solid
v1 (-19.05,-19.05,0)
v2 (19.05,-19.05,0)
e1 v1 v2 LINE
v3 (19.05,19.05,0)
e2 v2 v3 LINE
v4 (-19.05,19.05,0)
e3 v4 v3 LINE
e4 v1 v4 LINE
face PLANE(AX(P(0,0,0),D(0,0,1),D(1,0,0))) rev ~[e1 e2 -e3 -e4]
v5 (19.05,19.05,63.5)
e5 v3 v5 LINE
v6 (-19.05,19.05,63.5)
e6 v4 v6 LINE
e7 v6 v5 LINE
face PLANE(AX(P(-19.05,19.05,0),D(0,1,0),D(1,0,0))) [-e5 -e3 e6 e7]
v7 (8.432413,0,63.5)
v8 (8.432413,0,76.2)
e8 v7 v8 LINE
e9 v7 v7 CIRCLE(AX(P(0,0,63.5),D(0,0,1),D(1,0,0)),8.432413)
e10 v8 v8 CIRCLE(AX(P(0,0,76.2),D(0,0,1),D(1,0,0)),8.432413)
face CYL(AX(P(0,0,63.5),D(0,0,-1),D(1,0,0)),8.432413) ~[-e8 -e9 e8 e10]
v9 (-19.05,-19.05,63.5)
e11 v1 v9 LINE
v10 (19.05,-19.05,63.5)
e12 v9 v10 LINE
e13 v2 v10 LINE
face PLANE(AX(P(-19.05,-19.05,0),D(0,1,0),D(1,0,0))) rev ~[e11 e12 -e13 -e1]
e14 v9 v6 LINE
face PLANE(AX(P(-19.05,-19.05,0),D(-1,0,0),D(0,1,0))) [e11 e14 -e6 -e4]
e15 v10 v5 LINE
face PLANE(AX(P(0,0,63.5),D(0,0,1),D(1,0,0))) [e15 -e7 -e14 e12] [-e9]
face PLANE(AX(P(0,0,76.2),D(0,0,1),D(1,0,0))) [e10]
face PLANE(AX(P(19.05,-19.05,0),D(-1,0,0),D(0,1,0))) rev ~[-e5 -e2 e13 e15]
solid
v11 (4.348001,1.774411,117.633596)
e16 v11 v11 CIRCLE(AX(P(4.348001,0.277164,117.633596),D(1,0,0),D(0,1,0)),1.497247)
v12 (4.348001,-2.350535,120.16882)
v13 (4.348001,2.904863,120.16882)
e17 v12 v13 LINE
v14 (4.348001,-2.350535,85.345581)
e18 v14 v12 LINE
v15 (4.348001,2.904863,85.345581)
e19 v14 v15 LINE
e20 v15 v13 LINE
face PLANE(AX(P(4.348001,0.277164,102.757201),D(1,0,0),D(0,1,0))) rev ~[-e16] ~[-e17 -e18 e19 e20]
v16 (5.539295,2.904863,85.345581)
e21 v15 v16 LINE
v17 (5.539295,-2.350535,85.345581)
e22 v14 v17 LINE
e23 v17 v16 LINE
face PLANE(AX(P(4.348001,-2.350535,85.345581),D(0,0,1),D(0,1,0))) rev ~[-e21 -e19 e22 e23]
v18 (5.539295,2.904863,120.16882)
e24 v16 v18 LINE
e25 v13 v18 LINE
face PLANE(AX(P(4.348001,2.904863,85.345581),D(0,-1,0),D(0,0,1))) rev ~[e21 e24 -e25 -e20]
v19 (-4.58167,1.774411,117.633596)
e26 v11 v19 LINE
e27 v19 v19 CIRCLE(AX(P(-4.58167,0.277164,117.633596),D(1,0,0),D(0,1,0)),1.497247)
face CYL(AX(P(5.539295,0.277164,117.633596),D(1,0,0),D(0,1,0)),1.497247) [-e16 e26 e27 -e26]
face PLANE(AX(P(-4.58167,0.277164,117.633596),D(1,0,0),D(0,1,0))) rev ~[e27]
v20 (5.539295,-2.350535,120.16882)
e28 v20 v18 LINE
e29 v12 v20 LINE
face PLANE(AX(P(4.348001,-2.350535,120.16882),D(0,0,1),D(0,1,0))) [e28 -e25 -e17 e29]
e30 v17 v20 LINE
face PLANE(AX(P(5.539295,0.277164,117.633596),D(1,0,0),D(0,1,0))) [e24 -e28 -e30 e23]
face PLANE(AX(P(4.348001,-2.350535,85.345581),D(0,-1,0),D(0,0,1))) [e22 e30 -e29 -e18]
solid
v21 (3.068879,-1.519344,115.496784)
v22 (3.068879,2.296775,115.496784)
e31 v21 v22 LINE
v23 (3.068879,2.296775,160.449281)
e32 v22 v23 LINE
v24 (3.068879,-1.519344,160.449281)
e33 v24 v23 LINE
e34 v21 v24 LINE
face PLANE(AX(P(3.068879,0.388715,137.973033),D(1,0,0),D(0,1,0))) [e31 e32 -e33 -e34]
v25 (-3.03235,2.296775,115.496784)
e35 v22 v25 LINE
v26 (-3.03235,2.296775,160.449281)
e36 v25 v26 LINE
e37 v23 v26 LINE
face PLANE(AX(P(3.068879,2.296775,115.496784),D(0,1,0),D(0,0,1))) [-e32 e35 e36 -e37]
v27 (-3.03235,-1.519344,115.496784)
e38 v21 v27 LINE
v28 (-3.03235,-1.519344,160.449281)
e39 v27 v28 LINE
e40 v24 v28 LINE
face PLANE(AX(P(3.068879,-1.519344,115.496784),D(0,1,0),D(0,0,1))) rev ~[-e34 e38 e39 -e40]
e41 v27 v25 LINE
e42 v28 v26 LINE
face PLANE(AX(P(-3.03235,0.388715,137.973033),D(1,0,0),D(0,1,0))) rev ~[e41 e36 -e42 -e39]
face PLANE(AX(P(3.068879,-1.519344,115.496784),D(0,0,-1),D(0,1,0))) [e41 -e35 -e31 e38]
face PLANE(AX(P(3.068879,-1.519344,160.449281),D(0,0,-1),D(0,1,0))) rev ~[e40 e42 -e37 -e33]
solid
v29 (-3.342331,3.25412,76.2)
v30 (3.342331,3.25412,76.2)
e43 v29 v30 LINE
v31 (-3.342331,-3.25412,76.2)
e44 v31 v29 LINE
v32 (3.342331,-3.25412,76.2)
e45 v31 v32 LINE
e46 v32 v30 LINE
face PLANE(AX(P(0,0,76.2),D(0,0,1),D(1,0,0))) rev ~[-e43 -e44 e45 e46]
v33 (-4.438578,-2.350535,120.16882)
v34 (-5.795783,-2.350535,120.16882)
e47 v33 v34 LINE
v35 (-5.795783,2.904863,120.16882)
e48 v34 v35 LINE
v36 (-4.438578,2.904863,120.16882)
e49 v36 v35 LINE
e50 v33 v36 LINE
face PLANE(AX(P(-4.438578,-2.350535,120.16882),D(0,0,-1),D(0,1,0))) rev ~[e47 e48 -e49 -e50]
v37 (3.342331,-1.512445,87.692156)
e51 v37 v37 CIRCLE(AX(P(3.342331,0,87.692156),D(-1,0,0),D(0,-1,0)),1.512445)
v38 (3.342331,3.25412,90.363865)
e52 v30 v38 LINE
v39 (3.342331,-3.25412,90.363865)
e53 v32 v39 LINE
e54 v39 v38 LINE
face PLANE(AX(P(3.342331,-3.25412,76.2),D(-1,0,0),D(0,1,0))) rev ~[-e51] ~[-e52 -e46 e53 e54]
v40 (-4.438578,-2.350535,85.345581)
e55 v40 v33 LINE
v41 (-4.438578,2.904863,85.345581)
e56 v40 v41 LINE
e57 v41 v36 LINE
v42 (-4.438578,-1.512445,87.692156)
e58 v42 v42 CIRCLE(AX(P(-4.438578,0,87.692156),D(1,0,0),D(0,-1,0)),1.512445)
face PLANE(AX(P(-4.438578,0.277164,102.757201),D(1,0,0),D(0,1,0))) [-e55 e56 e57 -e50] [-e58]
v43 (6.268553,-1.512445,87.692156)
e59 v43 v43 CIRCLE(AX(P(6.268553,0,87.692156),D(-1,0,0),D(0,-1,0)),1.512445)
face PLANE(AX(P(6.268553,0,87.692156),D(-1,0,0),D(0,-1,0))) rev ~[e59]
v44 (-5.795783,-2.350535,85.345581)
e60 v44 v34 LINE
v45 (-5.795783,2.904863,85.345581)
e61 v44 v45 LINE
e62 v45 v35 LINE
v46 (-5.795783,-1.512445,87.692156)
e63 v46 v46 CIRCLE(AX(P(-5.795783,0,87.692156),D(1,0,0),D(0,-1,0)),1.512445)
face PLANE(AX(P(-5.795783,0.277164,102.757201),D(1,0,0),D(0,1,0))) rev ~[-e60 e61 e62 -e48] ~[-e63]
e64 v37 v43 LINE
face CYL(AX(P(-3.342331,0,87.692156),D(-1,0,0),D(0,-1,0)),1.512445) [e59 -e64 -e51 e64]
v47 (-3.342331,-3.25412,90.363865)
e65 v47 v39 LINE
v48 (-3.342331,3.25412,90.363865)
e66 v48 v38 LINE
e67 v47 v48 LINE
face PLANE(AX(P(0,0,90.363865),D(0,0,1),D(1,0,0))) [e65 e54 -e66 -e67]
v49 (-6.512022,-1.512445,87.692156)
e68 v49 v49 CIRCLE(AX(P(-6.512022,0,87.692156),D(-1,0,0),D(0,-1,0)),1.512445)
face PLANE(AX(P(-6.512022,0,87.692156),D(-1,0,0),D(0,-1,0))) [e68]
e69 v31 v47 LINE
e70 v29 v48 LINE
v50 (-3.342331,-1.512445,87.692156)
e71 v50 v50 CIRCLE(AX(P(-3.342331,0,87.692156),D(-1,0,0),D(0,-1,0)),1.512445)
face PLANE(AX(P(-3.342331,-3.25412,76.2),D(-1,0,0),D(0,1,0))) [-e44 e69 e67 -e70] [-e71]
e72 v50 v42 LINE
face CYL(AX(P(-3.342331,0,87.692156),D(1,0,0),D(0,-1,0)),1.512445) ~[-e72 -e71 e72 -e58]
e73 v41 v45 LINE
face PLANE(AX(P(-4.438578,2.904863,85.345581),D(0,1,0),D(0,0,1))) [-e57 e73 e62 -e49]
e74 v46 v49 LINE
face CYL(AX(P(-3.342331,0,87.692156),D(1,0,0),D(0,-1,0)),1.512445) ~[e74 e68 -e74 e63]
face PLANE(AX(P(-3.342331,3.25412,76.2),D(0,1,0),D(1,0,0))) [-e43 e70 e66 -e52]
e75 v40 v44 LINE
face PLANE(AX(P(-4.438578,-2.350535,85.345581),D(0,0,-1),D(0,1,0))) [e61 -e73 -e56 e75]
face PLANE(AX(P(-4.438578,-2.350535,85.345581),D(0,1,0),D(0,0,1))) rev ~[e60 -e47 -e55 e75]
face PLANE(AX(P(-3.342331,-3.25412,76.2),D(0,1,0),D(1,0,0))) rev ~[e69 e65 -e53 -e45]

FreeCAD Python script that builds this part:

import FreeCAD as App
import Part
import Sketcher
from FreeCAD import Vector
Q = App.Units.Quantity

doc = App.newDocument("Part")
params = doc.addObject("Spreadsheet::Sheet", "Params")
for row, (alias, value) in enumerate([
    ("sketch1_width", "1.5 in"),
    ("pad1_length", "2.5 in"),
    ("pad2_length", "0.5 in"),
    ("pad3_length", "14.163865 mm"),
    ("pad4_length", "3.16969 mm"),
    ("pad4_length2", "9.610884 mm"),
    ("pad5_length", "1.357205 mm"),
    ("pad6_length", "1.191295 mm"),
    ("pad7_length", "10.120966 mm"),
    ("pad8_length", "6.101229 mm"),
], start=1):
    params.set(f"A{row}", alias)
    params.set(f"B{row}", "=" + value)
    params.setAlias(f"B{row}", alias)

body = doc.addObject("PartDesign::Body", "Body")

# Sketch on XY plane
sketch1 = doc.addObject("Sketcher::SketchObject", "Sketch")
body.addObject(sketch1)
sketch1.AttachmentSupport = (doc.XY_Plane, [""])
sketch1.MapMode = "FlatFace"
sketch1.addGeometry([
    Part.LineSegment(Vector(-19, 19, 0), Vector(-19, -19, 0)),
    Part.LineSegment(Vector(-19, -19, 0), Vector(19, -19, 0)),
    Part.LineSegment(Vector(19, -19, 0), Vector(19, 19, 0)),
    Part.LineSegment(Vector(19, 19, 0), Vector(-19, 19, 0)),
], False)
sketch1.addConstraint([
    Sketcher.Constraint("Coincident", 0, 2, 1, 1),
    Sketcher.Constraint("Coincident", 1, 2, 2, 1),
    Sketcher.Constraint("Coincident", 2, 2, 3, 1),
    Sketcher.Constraint("Coincident", 3, 2, 0, 1),
    Sketcher.Constraint("Vertical", 0),
    Sketcher.Constraint("Horizontal", 1),
    Sketcher.Constraint("Vertical", 2),
    Sketcher.Constraint("Horizontal", 3),
    Sketcher.Constraint("Symmetric", 0, 2, 2, 2, -1, 1),
    Sketcher.Constraint("Equal", 3, 0),
    Sketcher.Constraint("DistanceX", 1, 1, 1, 2, Q("1.5 in")),
])
sketch1.setExpression("Constraints[10]", "Params.sketch1_width")
pad1 = doc.addObject("PartDesign::Pad", "Pad")
body.addObject(pad1)
pad1.Profile = sketch1
pad1.setExpression("Length", "Params.pad1_length")

# Sketch on XY plane
sketch2 = doc.addObject("Sketcher::SketchObject", "Sketch001")
body.addObject(sketch2)
sketch2.AttachmentSupport = (doc.XY_Plane, [""])
sketch2.MapMode = "FlatFace"
sketch2.AttachmentOffset = App.Placement(Vector(0, 0, 2.5 * 25.4), App.Rotation())
sketch2.addGeometry(Part.Circle(Vector(0, 0, 0), Vector(0, 0, 1), 8), False)
sketch2.addConstraint([
    Sketcher.Constraint("Coincident", 0, 3, -1, 1),
    Sketcher.Constraint("Diameter", 0, 16.864827),
])
pad2 = doc.addObject("PartDesign::Pad", "Pad001")
body.addObject(pad2)
pad2.Profile = sketch2
pad2.setExpression("Length", "Params.pad2_length")
body2 = doc.addObject("PartDesign::Body", "Body001")

# Sketch on XY plane
sketch3 = doc.addObject("Sketcher::SketchObject", "Sketch002")
body2.addObject(sketch3)
sketch3.AttachmentSupport = (doc.getObject("XY_Plane001"), [""])
sketch3.MapMode = "FlatFace"
sketch3.AttachmentOffset = App.Placement(Vector(0, 0, 3 * 25.4), App.Rotation())
sketch3.addGeometry([
    Part.LineSegment(Vector(-3, 3, 0), Vector(-3, -3, 0)),
    Part.LineSegment(Vector(-3, -3, 0), Vector(3, -3, 0)),
    Part.LineSegment(Vector(3, -3, 0), Vector(3, 3, 0)),
    Part.LineSegment(Vector(3, 3, 0), Vector(-3, 3, 0)),
], False)
sketch3.addConstraint([
    Sketcher.Constraint("Coincident", 0, 2, 1, 1),
    Sketcher.Constraint("Coincident", 1, 2, 2, 1),
    Sketcher.Constraint("Coincident", 2, 2, 3, 1),
    Sketcher.Constraint("Coincident", 3, 2, 0, 1),
    Sketcher.Constraint("Vertical", 0),
    Sketcher.Constraint("Horizontal", 1),
    Sketcher.Constraint("Vertical", 2),
    Sketcher.Constraint("Horizontal", 3),
    Sketcher.Constraint("Symmetric", 0, 2, 2, 2, -1, 1),
    Sketcher.Constraint("DistanceY", 0, 2, 0, 1, 6.50824),
    Sketcher.Constraint("DistanceX", 1, 1, 1, 2, 6.684663),
])
pad3 = doc.addObject("PartDesign::Pad", "Pad002")
body2.addObject(pad3)
pad3.Profile = sketch3
pad3.setExpression("Length", "Params.pad3_length")

# Sketch on YZ plane
sketch4 = doc.addObject("Sketcher::SketchObject", "Sketch003")
body2.addObject(sketch4)
sketch4.AttachmentSupport = (doc.getObject("YZ_Plane001"), [""])
sketch4.MapMode = "FlatFace"
sketch4.AttachmentOffset = App.Placement(Vector(0, 0, -3.342331), App.Rotation())
sketch4.addGeometry(Part.Circle(Vector(0, 87.7, 0), Vector(0, 0, 1), 1.5), False)
sketch4.addConstraint([
    Sketcher.Constraint("PointOnObject", 0, 3, -2),
    Sketcher.Constraint("Diameter", 0, 3.024891),
    Sketcher.Constraint("DistanceY", -1, 1, 0, 3, 87.692156),
])
pad4 = doc.addObject("PartDesign::Pad", "Pad003")
body2.addObject(pad4)
pad4.Profile = sketch4
pad4.Type = "TwoLengths"
pad4.setExpression("Length", "Params.pad4_length")
pad4.setExpression("Length2", "Params.pad4_length2")
pad4.Reversed = True

# Sketch on YZ plane
sketch5 = doc.addObject("Sketcher::SketchObject", "Sketch004")
body2.addObject(sketch5)
sketch5.AttachmentSupport = (doc.getObject("YZ_Plane001"), [""])
sketch5.MapMode = "FlatFace"
sketch5.AttachmentOffset = App.Placement(Vector(0, 0, -4.438578), App.Rotation())
sketch5.addGeometry([
    Part.LineSegment(Vector(-2, 120, 0), Vector(-2, 85, 0)),
    Part.LineSegment(Vector(-2, 85, 0), Vector(3, 85, 0)),
    Part.LineSegment(Vector(3, 85, 0), Vector(3, 120, 0)),
    Part.LineSegment(Vector(3, 120, 0), Vector(-2, 120, 0)),
], False)
sketch5.addConstraint([
    Sketcher.Constraint("Coincident", 0, 2, 1, 1),
    Sketcher.Constraint("Coincident", 1, 2, 2, 1),
    Sketcher.Constraint("Coincident", 2, 2, 3, 1),
    Sketcher.Constraint("Coincident", 3, 2, 0, 1),
    Sketcher.Constraint("Vertical", 0),
    Sketcher.Constraint("Horizontal", 1),
    Sketcher.Constraint("Vertical", 2),
    Sketcher.Constraint("Horizontal", 3),
    Sketcher.Constraint("DistanceY", 0, 2, 0, 1, 34.823239),
    Sketcher.Constraint("DistanceX", 1, 1, 1, 2, 5.255398),
    Sketcher.Constraint("DistanceY", -1, 1, 0, 2, 85.345581),
    Sketcher.Constraint("DistanceX", 0, 2, -1, 1, 2.350535),
])
pad5 = doc.addObject("PartDesign::Pad", "Pad004")
body2.addObject(pad5)
pad5.Profile = sketch5
pad5.setExpression("Length", "Params.pad5_length")
pad5.Reversed = True
body3 = doc.addObject("PartDesign::Body", "Body002")

# Sketch on YZ plane
sketch6 = doc.addObject("Sketcher::SketchObject", "Sketch005")
body3.addObject(sketch6)
sketch6.AttachmentSupport = (doc.getObject("YZ_Plane002"), [""])
sketch6.MapMode = "FlatFace"
sketch6.AttachmentOffset = App.Placement(Vector(0, 0, 4.348001), App.Rotation())
sketch6.addGeometry([
    Part.LineSegment(Vector(-2, 120, 0), Vector(-2, 85, 0)),
    Part.LineSegment(Vector(-2, 85, 0), Vector(3, 85, 0)),
    Part.LineSegment(Vector(3, 85, 0), Vector(3, 120, 0)),
    Part.LineSegment(Vector(3, 120, 0), Vector(-2, 120, 0)),
], False)
sketch6.addConstraint([
    Sketcher.Constraint("Coincident", 0, 2, 1, 1),
    Sketcher.Constraint("Coincident", 1, 2, 2, 1),
    Sketcher.Constraint("Coincident", 2, 2, 3, 1),
    Sketcher.Constraint("Coincident", 3, 2, 0, 1),
    Sketcher.Constraint("Vertical", 0),
    Sketcher.Constraint("Horizontal", 1),
    Sketcher.Constraint("Vertical", 2),
    Sketcher.Constraint("Horizontal", 3),
    Sketcher.Constraint("DistanceY", 0, 2, 0, 1, 34.823239),
    Sketcher.Constraint("DistanceX", 1, 1, 1, 2, 5.255398),
    Sketcher.Constraint("DistanceY", -1, 1, 0, 2, 85.345581),
    Sketcher.Constraint("DistanceX", 0, 2, -1, 1, 2.350535),
])
pad6 = doc.addObject("PartDesign::Pad", "Pad005")
body3.addObject(pad6)
pad6.Profile = sketch6
pad6.setExpression("Length", "Params.pad6_length")

# Sketch on YZ plane
sketch7 = doc.addObject("Sketcher::SketchObject", "Sketch006")
body3.addObject(sketch7)
sketch7.AttachmentSupport = (doc.getObject("YZ_Plane002"), [""])
sketch7.MapMode = "FlatFace"
sketch7.AttachmentOffset = App.Placement(Vector(0, 0, 5.539295), App.Rotation())
sketch7.addGeometry(Part.Circle(Vector(0.3, 117.6, 0), Vector(0, 0, 1), 1.5), False)
sketch7.addConstraint([
    Sketcher.Constraint("Diameter", 0, 2.994493),
    Sketcher.Constraint("DistanceX", -1, 1, 0, 3, 0.277164),
    Sketcher.Constraint("DistanceY", -1, 1, 0, 3, 117.633596),
])
pad7 = doc.addObject("PartDesign::Pad", "Pad006")
body3.addObject(pad7)
pad7.Profile = sketch7
pad7.setExpression("Length", "Params.pad7_length")
pad7.Reversed = True
body4 = doc.addObject("PartDesign::Body", "Body003")

# Sketch on YZ plane
sketch8 = doc.addObject("Sketcher::SketchObject", "Sketch007")
body4.addObject(sketch8)
sketch8.AttachmentSupport = (doc.getObject("YZ_Plane003"), [""])
sketch8.MapMode = "FlatFace"
sketch8.AttachmentOffset = App.Placement(Vector(0, 0, 3.068879), App.Rotation())
sketch8.addGeometry([
    Part.LineSegment(Vector(-1.5, 160.4, 0), Vector(-1.5, 115.5, 0)),
    Part.LineSegment(Vector(-1.5, 115.5, 0), Vector(2.3, 115.5, 0)),
    Part.LineSegment(Vector(2.3, 115.5, 0), Vector(2.3, 160.4, 0)),
    Part.LineSegment(Vector(2.3, 160.4, 0), Vector(-1.5, 160.4, 0)),
], False)
sketch8.addConstraint([
    Sketcher.Constraint("Coincident", 0, 2, 1, 1),
    Sketcher.Constraint("Coincident", 1, 2, 2, 1),
    Sketcher.Constraint("Coincident", 2, 2, 3, 1),
    Sketcher.Constraint("Coincident", 3, 2, 0, 1),
    Sketcher.Constraint("Vertical", 0),
    Sketcher.Constraint("Horizontal", 1),
    Sketcher.Constraint("Vertical", 2),
    Sketcher.Constraint("Horizontal", 3),
    Sketcher.Constraint("DistanceX", 1, 1, 1, 2, 3.816119),
    Sketcher.Constraint("DistanceY", 0, 2, 0, 1, 44.952497),
    Sketcher.Constraint("DistanceY", -1, 1, 2, 2, 160.449281),
    Sketcher.Constraint("DistanceX", 0, 2, -1, 1, 1.519344),
])
pad8 = doc.addObject("PartDesign::Pad", "Pad007")
body4.addObject(pad8)
pad8.Profile = sketch8
pad8.setExpression("Length", "Params.pad8_length")
pad8.Reversed = True

doc.recompute()
